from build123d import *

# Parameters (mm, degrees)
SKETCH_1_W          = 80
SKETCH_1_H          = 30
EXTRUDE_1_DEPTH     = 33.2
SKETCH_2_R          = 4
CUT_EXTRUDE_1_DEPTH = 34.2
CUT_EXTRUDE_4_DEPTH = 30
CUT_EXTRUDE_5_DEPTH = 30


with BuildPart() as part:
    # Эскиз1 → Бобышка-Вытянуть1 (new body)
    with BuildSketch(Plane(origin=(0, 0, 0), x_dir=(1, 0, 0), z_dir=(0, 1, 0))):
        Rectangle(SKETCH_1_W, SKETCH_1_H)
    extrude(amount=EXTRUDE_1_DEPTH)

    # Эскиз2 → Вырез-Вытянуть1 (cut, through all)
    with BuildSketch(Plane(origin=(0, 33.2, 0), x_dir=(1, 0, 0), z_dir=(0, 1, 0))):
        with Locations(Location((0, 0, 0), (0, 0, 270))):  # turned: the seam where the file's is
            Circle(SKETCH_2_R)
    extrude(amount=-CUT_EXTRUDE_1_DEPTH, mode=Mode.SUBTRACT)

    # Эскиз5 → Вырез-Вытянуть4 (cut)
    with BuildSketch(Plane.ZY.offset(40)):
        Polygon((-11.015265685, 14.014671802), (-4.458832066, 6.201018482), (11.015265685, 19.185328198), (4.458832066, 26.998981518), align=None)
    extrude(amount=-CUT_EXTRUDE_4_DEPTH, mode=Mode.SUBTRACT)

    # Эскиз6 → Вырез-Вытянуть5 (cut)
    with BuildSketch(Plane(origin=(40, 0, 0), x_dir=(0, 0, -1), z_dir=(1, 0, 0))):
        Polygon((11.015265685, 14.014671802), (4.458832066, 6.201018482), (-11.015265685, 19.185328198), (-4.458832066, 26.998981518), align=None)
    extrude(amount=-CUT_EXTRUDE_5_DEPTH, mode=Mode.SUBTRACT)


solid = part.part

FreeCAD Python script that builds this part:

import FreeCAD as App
import Part
import Sketcher
from FreeCAD import Vector
Q = App.Units.Quantity

doc = App.newDocument("Part")
params = doc.addObject("Spreadsheet::Sheet", "Params")
for row, (alias, value) in enumerate([
    ("sketch1_width", "80 mm"),
    ("sketch1_height", "30 mm"),
    ("pad1_length", "33.2 mm"),
    ("sketch2_diameter", "8 mm"),
    ("sketch3_length", "10.2 mm"),
    ("sketch3_length2", "20.2 mm"),
    ("pocket2_length", "30 mm"),
    ("sketch4_length", "10.2 mm"),
    ("sketch4_length2", "20.2 mm"),
    ("pocket3_length", "30 mm"),
], start=1):
    params.set(f"A{row}", alias)
    params.set(f"B{row}", "=" + value)
    params.setAlias(f"B{row}", alias)

body = doc.addObject("PartDesign::Body", "Body")

# Sketch on XZ plane
sketch1 = body.newObject("Sketcher::SketchObject", "Sketch")
sketch1.AttachmentSupport = (doc.getObject("XZ_Plane"), [""])
sketch1.MapMode = "FlatFace"
sketch1.addGeometry([
    Part.LineSegment(Vector(-40, -15, 0), Vector(-40, 15, 0)),
    Part.LineSegment(Vector(-40, 15, 0), Vector(40, 15, 0)),
    Part.LineSegment(Vector(40, 15, 0), Vector(40, -15, 0)),
    Part.LineSegment(Vector(40, -15, 0), Vector(-40, -15, 0)),
], False)
sketch1.addConstraint([
    Sketcher.Constraint("Coincident", 0, 2, 1, 1),
    Sketcher.Constraint("Coincident", 1, 2, 2, 1),
    Sketcher.Constraint("Coincident", 2, 2, 3, 1),
    Sketcher.Constraint("Coincident", 3, 2, 0, 1),
    Sketcher.Constraint("Vertical", 0),
    Sketcher.Constraint("Horizontal", 1),
    Sketcher.Constraint("Vertical", 2),
    Sketcher.Constraint("Horizontal", 3),
    Sketcher.Constraint("Symmetric", 0, 2, 2, 2, -1, 1),
    Sketcher.Constraint("DistanceX", 1, 1, 1, 2, 80.0),
    Sketcher.Constraint("DistanceY", 0, 1, 0, 2, 30.0),
])
sketch1.setExpression("Constraints[9]", "Params.sketch1_width")
sketch1.setExpression("Constraints[10]", "Params.sketch1_height")
pad1 = body.newObject("PartDesign::Pad", "Pad")
pad1.Profile = sketch1
pad1.setExpression("Length", "Params.pad1_length")
pad1.Reversed = True

# Sketch on XZ plane
sketch2 = body.newObject("Sketcher::SketchObject", "Sketch001")
sketch2.AttachmentSupport = (doc.getObject("XZ_Plane"), [""])
sketch2.MapMode = "FlatFace"
sketch2.AttachmentOffset = App.Placement(Vector(0, 0, -33.2), App.Rotation())
sketch2.addGeometry(Part.Circle(Vector(0, 0, 0), Vector(0, 0, 1), 4), False)
sketch2.addConstraint([
    Sketcher.Constraint("Coincident", 0, 3, -1, 1),
    Sketcher.Constraint("Diameter", 0, 8.0),
])
sketch2.setExpression("Constraints[1]", "Params.sketch2_diameter")
pocket1 = body.newObject("PartDesign::Pocket", "Pocket")
pocket1.Profile = sketch2
pocket1.Type = "ThroughAll"
pocket1.Reversed = True

# Sketch on YZ plane
sketch3 = body.newObject("Sketcher::SketchObject", "Sketch002")
sketch3.AttachmentSupport = (doc.getObject("YZ_Plane"), [""])
sketch3.MapMode = "FlatFace"
sketch3.AttachmentOffset = App.Placement(Vector(0, 0, -40), App.Rotation())
sketch3.addGeometry([
    Part.LineSegment(Vector(14, -11, 0), Vector(6, -4, 0)),
    Part.LineSegment(Vector(6, -4, 0), Vector(19, 11, 0)),
    Part.LineSegment(Vector(19, 11, 0), Vector(27, 4, 0)),
    Part.LineSegment(Vector(27, 4, 0), Vector(14, -11, 0)),
], False)
sketch3.addConstraint([
    Sketcher.Constraint("Coincident", 0, 2, 1, 1),
    Sketcher.Constraint("Coincident", 1, 2, 2, 1),
    Sketcher.Constraint("Coincident", 2, 2, 3, 1),
    Sketcher.Constraint("Coincident", 3, 2, 0, 1),
    Sketcher.Constraint("Perpendicular", 0, 1),
    Sketcher.Constraint("Perpendicular", 1, 2),
    Sketcher.Constraint("Perpendicular", 2, 3),
    Sketcher.Constraint("Angle", 0, Q("140 deg")),
    Sketcher.Constraint("Distance", 0, 10.2),
    Sketcher.Constraint("Distance", 1, 20.2),
    Sketcher.Constraint("DistanceX", -1, 1, 0, 2, 6.201018),
    Sketcher.Constraint("DistanceY", 0, 2, -1, 1, 4.458832),
])
sketch3.setExpression("Constraints[8]", "Params.sketch3_length")
sketch3.setExpression("Constraints[9]", "Params.sketch3_length2")
pocket2 = body.newObject("PartDesign::Pocket", "Pocket001")
pocket2.Profile = sketch3
pocket2.setExpression("Length", "Params.pocket2_length")
pocket2.Reversed = True

# Sketch on YZ plane
sketch4 = body.newObject("Sketcher::SketchObject", "Sketch003")
sketch4.AttachmentSupport = (doc.getObject("YZ_Plane"), [""])
sketch4.MapMode = "FlatFace"
sketch4.AttachmentOffset = App.Placement(Vector(0, 0, 40), App.Rotation())
sketch4.addGeometry([
    Part.LineSegment(Vector(6, -4, 0), Vector(14, -11, 0)),
    Part.LineSegment(Vector(14, -11, 0), Vector(27, 4, 0)),
    Part.LineSegment(Vector(27, 4, 0), Vector(19, 11, 0)),
    Part.LineSegment(Vector(19, 11, 0), Vector(6, -4, 0)),
], False)
sketch4.addConstraint([
    Sketcher.Constraint("Coincident", 0, 2, 1, 1),
    Sketcher.Constraint("Coincident", 1, 2, 2, 1),
    Sketcher.Constraint("Coincident", 2, 2, 3, 1),
    Sketcher.Constraint("Coincident", 3, 2, 0, 1),
    Sketcher.Constraint("Perpendicular", 0, 1),
    Sketcher.Constraint("Perpendicular", 1, 2),
    Sketcher.Constraint("Perpendicular", 2, 3),
    Sketcher.Constraint("Angle", 0, Q("-40 deg")),
    Sketcher.Constraint("Distance", 0, 10.2),
    Sketcher.Constraint("Distance", 1, 20.2),
    Sketcher.Constraint("DistanceX", -1, 1, 0, 2, 14.014672),
    Sketcher.Constraint("DistanceY", 0, 2, -1, 1, 11.015266),
])
sketch4.setExpression("Constraints[8]", "Params.sketch4_length")
sketch4.setExpression("Constraints[9]", "Params.sketch4_length2")
pocket3 = body.newObject("PartDesign::Pocket", "Pocket002")
pocket3.Profile = sketch4
pocket3.setExpression("Length", "Params.pocket3_length")

doc.recompute()
